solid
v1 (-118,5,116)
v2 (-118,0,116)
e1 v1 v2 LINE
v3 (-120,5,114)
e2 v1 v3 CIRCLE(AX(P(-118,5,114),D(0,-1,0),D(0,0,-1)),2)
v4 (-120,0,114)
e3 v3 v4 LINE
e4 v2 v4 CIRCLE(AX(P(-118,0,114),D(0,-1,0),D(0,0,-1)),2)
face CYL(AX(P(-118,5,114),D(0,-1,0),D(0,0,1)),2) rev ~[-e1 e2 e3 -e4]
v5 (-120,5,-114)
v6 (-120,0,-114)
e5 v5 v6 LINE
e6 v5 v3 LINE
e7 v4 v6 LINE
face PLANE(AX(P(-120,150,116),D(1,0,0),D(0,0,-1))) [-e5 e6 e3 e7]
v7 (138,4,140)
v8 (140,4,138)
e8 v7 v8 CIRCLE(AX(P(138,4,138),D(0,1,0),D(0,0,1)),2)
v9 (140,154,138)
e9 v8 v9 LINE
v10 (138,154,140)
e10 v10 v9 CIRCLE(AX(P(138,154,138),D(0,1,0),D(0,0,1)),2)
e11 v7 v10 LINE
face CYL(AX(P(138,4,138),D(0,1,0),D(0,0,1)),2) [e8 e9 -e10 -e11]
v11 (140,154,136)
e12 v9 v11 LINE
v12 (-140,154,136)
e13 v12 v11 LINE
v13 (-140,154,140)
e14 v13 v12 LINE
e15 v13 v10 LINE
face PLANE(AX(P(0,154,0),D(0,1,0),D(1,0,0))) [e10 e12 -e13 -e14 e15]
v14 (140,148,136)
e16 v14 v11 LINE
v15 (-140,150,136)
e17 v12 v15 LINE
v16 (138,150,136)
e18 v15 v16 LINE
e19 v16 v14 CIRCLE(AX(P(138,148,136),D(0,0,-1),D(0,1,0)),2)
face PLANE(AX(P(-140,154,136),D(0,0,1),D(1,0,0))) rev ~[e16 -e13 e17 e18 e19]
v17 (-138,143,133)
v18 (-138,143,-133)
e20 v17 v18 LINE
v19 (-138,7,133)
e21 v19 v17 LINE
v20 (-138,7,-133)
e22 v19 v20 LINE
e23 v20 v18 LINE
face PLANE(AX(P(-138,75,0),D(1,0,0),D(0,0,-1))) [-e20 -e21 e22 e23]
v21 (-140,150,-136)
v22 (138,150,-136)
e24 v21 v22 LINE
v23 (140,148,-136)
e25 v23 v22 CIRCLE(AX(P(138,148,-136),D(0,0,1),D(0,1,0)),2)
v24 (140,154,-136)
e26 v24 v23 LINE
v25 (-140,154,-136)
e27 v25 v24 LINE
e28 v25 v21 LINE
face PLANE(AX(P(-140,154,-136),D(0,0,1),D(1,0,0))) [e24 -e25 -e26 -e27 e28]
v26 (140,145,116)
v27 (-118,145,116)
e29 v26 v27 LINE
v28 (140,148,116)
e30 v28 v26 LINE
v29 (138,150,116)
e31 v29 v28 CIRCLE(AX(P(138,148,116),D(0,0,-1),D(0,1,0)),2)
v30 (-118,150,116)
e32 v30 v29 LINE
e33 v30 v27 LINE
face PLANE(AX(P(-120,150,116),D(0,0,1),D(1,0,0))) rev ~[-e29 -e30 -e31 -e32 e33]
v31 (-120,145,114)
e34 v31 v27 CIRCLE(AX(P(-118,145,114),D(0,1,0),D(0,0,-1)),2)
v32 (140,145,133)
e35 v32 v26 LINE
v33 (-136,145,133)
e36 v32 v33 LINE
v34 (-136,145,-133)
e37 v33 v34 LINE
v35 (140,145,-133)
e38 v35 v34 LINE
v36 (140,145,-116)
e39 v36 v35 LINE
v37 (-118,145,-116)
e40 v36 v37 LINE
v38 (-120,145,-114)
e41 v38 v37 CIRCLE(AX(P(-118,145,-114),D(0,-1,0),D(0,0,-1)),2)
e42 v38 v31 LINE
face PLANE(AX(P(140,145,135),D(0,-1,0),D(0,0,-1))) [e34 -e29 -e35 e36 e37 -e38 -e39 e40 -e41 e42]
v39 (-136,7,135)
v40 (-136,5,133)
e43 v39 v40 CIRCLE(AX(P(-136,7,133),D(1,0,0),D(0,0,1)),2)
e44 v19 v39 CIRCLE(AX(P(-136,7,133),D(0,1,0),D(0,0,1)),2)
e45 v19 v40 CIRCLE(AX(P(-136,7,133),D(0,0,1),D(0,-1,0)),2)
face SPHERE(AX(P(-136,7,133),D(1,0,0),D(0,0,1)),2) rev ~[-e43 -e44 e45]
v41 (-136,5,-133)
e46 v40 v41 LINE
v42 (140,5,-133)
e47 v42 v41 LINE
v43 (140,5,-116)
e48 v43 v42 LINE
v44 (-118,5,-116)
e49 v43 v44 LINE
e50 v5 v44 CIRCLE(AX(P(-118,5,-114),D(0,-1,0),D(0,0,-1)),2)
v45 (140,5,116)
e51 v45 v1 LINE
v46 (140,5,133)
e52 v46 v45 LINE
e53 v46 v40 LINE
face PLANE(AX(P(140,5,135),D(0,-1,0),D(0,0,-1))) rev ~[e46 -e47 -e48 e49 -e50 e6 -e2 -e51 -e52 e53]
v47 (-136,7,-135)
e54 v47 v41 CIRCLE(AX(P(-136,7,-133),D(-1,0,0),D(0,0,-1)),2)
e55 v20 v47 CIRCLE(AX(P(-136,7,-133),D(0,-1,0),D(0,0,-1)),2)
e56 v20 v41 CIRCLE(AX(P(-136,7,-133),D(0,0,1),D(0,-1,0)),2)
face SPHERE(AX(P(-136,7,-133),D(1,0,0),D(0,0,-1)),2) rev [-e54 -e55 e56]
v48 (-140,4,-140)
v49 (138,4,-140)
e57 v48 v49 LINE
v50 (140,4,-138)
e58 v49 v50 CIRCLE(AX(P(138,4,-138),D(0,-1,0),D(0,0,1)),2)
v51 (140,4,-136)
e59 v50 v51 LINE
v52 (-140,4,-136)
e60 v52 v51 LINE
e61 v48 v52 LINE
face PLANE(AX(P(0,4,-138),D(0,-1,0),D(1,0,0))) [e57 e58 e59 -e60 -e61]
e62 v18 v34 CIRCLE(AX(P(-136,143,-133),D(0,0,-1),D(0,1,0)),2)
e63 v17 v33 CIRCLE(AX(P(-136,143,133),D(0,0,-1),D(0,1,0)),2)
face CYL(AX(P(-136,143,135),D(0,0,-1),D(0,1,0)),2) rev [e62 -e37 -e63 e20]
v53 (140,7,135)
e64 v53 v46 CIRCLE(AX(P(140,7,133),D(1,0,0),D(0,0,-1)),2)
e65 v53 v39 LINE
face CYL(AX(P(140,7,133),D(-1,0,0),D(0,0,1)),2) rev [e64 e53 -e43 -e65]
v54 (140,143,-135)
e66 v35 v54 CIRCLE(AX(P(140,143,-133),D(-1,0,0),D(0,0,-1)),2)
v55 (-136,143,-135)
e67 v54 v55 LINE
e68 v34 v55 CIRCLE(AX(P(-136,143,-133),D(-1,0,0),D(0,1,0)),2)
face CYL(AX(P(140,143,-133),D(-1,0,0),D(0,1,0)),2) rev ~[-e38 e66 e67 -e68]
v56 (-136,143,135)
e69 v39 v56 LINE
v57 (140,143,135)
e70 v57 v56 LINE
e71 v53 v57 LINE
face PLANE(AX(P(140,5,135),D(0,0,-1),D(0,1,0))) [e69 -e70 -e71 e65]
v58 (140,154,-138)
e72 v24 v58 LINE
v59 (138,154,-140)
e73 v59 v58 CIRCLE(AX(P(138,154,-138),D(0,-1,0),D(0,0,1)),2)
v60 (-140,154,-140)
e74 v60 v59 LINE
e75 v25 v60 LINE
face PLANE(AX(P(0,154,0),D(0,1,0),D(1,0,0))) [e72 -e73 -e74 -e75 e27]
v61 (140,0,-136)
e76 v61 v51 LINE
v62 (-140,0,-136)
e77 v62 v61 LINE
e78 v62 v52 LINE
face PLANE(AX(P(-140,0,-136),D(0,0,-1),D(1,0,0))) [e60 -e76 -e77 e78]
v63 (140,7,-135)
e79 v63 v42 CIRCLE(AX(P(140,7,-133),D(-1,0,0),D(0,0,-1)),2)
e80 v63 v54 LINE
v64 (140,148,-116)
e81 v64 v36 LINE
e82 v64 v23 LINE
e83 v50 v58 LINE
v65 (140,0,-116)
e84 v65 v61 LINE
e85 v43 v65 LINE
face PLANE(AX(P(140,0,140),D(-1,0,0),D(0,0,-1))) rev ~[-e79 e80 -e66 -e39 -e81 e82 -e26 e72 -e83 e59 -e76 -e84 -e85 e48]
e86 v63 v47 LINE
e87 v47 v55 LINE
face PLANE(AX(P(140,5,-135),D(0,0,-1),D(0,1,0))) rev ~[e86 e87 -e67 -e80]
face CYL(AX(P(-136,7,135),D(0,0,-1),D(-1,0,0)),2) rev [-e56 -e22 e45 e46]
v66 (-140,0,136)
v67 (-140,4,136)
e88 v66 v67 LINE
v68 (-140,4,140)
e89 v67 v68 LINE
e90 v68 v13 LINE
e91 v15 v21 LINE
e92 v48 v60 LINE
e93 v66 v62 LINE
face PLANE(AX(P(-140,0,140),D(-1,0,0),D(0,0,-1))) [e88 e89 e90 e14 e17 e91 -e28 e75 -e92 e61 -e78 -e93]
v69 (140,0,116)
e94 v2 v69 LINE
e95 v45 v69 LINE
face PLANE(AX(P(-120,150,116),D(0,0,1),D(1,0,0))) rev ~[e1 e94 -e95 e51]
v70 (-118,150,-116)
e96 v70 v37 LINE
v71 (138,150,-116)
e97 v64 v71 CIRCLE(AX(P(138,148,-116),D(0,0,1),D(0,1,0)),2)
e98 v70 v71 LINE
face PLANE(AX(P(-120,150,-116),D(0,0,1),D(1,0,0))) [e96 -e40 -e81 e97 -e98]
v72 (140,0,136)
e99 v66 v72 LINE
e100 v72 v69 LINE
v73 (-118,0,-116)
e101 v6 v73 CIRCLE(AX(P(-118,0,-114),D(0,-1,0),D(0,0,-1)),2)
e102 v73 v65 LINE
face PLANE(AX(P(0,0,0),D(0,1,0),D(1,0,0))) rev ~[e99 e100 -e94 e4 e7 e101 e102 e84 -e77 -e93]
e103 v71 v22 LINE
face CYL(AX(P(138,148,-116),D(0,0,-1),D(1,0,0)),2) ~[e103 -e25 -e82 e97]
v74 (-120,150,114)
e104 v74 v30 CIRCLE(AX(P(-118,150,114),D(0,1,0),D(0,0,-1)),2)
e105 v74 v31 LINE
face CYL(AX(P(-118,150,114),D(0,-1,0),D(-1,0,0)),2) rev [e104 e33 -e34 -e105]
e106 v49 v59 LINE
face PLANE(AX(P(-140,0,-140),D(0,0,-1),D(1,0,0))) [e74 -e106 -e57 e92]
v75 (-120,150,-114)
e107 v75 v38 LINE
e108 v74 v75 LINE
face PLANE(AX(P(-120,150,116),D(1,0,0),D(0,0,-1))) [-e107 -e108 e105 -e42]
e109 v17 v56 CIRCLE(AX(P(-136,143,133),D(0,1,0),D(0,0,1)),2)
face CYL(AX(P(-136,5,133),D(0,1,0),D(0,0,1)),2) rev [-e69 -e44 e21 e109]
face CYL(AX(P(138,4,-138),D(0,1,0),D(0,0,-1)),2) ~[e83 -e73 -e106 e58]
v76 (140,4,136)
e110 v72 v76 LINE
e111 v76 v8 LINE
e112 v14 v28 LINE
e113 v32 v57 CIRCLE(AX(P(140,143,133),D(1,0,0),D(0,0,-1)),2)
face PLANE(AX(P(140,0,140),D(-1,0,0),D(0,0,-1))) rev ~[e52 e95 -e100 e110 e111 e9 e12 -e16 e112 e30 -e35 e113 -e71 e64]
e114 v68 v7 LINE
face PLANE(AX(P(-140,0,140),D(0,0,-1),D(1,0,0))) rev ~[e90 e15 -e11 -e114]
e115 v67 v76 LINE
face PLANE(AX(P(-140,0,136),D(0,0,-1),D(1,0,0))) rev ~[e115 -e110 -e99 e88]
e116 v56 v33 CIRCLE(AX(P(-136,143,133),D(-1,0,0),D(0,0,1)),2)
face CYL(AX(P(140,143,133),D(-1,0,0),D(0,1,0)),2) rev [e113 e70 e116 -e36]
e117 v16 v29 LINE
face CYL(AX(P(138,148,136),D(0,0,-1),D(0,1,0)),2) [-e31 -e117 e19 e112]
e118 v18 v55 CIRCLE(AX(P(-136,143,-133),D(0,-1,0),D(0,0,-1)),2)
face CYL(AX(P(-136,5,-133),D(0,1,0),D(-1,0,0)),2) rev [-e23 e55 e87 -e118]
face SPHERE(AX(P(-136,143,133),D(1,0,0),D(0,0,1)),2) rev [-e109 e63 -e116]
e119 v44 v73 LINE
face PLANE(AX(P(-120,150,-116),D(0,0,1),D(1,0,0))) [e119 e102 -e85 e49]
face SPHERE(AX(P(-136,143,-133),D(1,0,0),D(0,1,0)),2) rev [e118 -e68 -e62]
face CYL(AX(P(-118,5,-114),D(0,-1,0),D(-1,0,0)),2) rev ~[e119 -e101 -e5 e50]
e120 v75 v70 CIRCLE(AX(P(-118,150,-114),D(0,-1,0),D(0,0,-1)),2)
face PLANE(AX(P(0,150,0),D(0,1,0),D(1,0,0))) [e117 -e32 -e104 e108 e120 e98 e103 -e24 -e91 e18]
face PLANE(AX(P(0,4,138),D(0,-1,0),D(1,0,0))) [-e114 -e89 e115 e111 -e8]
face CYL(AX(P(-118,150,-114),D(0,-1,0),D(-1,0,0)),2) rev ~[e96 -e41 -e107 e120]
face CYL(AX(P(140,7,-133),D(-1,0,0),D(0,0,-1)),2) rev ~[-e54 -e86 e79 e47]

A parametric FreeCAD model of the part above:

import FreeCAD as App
import Part
import Sketcher


def edges_at(feature, points):
    """Names of the edges that pass closest to the given points."""
    edges = feature.Shape.Edges
    near = lambda p: min(range(len(edges)), key=lambda i: edges[i].distToShape(Part.Vertex(*p))[0])
    return sorted({f"Edge{near(p) + 1}" for p in points})

doc = App.newDocument("Part")
body = doc.addObject("PartDesign::Body", "Body")

# Sketch on XZ plane
sketch1 = body.newObject("Sketcher::SketchObject", "Sketch")
sketch1.AttachmentSupport = (doc.getObject("XZ_Plane"), [""])
sketch1.MapMode = "FlatFace"
sketch1.addGeometry([
    Part.LineSegment(App.Vector(-140, -140, 0), App.Vector(-140, 140, 0)),
    Part.LineSegment(App.Vector(-140, 140, 0), App.Vector(140, 140, 0)),
    Part.LineSegment(App.Vector(140, 140, 0), App.Vector(140, -140, 0)),
    Part.LineSegment(App.Vector(140, -140, 0), App.Vector(-140, -140, 0)),
], False)
sketch1.addConstraint([
    Sketcher.Constraint("Coincident", 0, 2, 1, 1),
    Sketcher.Constraint("Coincident", 1, 2, 2, 1),
    Sketcher.Constraint("Coincident", 2, 2, 3, 1),
    Sketcher.Constraint("Coincident", 3, 2, 0, 1),
    Sketcher.Constraint("Vertical", 0),
    Sketcher.Constraint("Horizontal", 1),
    Sketcher.Constraint("Vertical", 2),
    Sketcher.Constraint("Horizontal", 3),
    Sketcher.Constraint("Symmetric", 0, 2, 2, 2, -1, 1),
    Sketcher.Constraint("Equal", 3, 0),
    Sketcher.Constraint("DistanceX", 1, 1, 1, 2, 280.0),
])
pad1 = body.newObject("PartDesign::Pad", "Pad")
pad1.Profile = sketch1
pad1.Length = 154
pad1.Reversed = True

# Sketch on XZ plane
sketch2 = body.newObject("Sketcher::SketchObject", "Sketch001")
sketch2.AttachmentSupport = (doc.getObject("XZ_Plane"), [""])
sketch2.MapMode = "FlatFace"
sketch2.AttachmentOffset = App.Placement(App.Vector(0, 0, -154), App.Rotation())
sketch2.addGeometry([
    Part.LineSegment(App.Vector(-140, -136, 0), App.Vector(-140, 136, 0)),
    Part.LineSegment(App.Vector(-140, 136, 0), App.Vector(140, 136, 0)),
    Part.LineSegment(App.Vector(140, 136, 0), App.Vector(140, -136, 0)),
    Part.LineSegment(App.Vector(140, -136, 0), App.Vector(-140, -136, 0)),
], False)
sketch2.addConstraint([
    Sketcher.Constraint("Coincident", 0, 2, 1, 1),
    Sketcher.Constraint("Coincident", 1, 2, 2, 1),
    Sketcher.Constraint("Coincident", 2, 2, 3, 1),
    Sketcher.Constraint("Coincident", 3, 2, 0, 1),
    Sketcher.Constraint("Vertical", 0),
    Sketcher.Constraint("Horizontal", 1),
    Sketcher.Constraint("Vertical", 2),
    Sketcher.Constraint("Horizontal", 3),
    Sketcher.Constraint("Symmetric", 0, 2, 2, 2, -1, 1),
    Sketcher.Constraint("DistanceX", 1, 1, 1, 2, 280.0),
    Sketcher.Constraint("DistanceY", 0, 1, 0, 2, 272.0),
])
pocket1 = body.newObject("PartDesign::Pocket", "Pocket")
pocket1.Profile = sketch2
pocket1.Length = 4
pocket1.Reversed = True

# Sketch on XZ plane
sketch3 = body.newObject("Sketcher::SketchObject", "Sketch002")
sketch3.AttachmentSupport = (doc.getObject("XZ_Plane"), [""])
sketch3.MapMode = "FlatFace"
sketch3.addGeometry([
    Part.LineSegment(App.Vector(-140, 140, 0), App.Vector(-140, 136, 0)),  # 0
    Part.LineSegment(App.Vector(-140, 136, 0), App.Vector(140, 136, 0)),  # 1
    Part.LineSegment(App.Vector(140, 136, 0), App.Vector(140, 140, 0)),  # 2
    Part.LineSegment(App.Vector(140, 140, 0), App.Vector(-140, 140, 0)),  # 3
    Part.LineSegment(App.Vector(-140, -136, 0), App.Vector(-140, -140, 0)),  # 4
    Part.LineSegment(App.Vector(-140, -140, 0), App.Vector(140, -140, 0)),  # 5
    Part.LineSegment(App.Vector(140, -140, 0), App.Vector(140, -136, 0)),  # 6
    Part.LineSegment(App.Vector(140, -136, 0), App.Vector(-140, -136, 0)),  # 7
], False)
sketch3.addConstraint([
    Sketcher.Constraint("Coincident", 0, 2, 1, 1),
    Sketcher.Constraint("Coincident", 1, 2, 2, 1),
    Sketcher.Constraint("Coincident", 2, 2, 3, 1),
    Sketcher.Constraint("Coincident", 3, 2, 0, 1),
    Sketcher.Constraint("Coincident", 4, 2, 5, 1),
    Sketcher.Constraint("Coincident", 5, 2, 6, 1),
    Sketcher.Constraint("Coincident", 6, 2, 7, 1),
    Sketcher.Constraint("Coincident", 7, 2, 4, 1),
    Sketcher.Constraint("Vertical", 0),
    Sketcher.Constraint("Horizontal", 1),
    Sketcher.Constraint("Vertical", 2),
    Sketcher.Constraint("Horizontal", 3),
    Sketcher.Constraint("Vertical", 4),
    Sketcher.Constraint("Horizontal", 5),
    Sketcher.Constraint("Vertical", 6),
    Sketcher.Constraint("Horizontal", 7),
    Sketcher.Constraint("Symmetric", 2, 2, 4, 2, -1, 1),
    Sketcher.Constraint("Symmetric", 0, 2, 6, 2, -1, 1),
    Sketcher.Constraint("Vertical", 3, 2, 4, 2),
    Sketcher.Constraint("DistanceX", 1, 1, 1, 2, 280.0),
    Sketcher.Constraint("DistanceY", 0, 2, 0, 1, 4.0),
    Sketcher.Constraint("DistanceY", -1, 1, 0, 2, 136.0),
])
pocket2 = body.newObject("PartDesign::Pocket", "Pocket001")
pocket2.Profile = sketch3
pocket2.Length = 4

# Sketch on YZ plane
sketch4 = body.newObject("Sketcher::SketchObject", "Sketch003")
sketch4.AttachmentSupport = (doc.getObject("YZ_Plane"), [""])
sketch4.MapMode = "FlatFace"
sketch4.AttachmentOffset = App.Placement(App.Vector(0, 0, 140), App.Rotation())
sketch4.addGeometry([
    Part.LineSegment(App.Vector(145, 135, 0), App.Vector(5, 135, 0)),
    Part.LineSegment(App.Vector(5, 135, 0), App.Vector(5, -135, 0)),
    Part.LineSegment(App.Vector(5, -135, 0), App.Vector(145, -135, 0)),
    Part.LineSegment(App.Vector(145, -135, 0), App.Vector(145, 135, 0)),
], False)
sketch4.addConstraint([
    Sketcher.Constraint("Coincident", 0, 2, 1, 1),
    Sketcher.Constraint("Coincident", 1, 2, 2, 1),
    Sketcher.Constraint("Coincident", 2, 2, 3, 1),
    Sketcher.Constraint("Coincident", 3, 2, 0, 1),
    Sketcher.Constraint("Horizontal", 0),
    Sketcher.Constraint("Vertical", 1),
    Sketcher.Constraint("Horizontal", 2),
    Sketcher.Constraint("Vertical", 3),
    Sketcher.Constraint("DistanceX", 0, 2, 0, 1, 140.0),
    Sketcher.Constraint("DistanceY", 1, 2, 1, 1, 270.0),
    Sketcher.Constraint("DistanceX", -1, 1, 0, 2, 5.0),
    Sketcher.Constraint("DistanceY", -1, 1, 0, 2, 135.0),
])
pocket3 = body.newObject("PartDesign::Pocket", "Pocket002")
pocket3.Profile = sketch4
pocket3.Length = 278

# Sketch on XZ plane
sketch5 = body.newObject("Sketcher::SketchObject", "Sketch004")
sketch5.AttachmentSupport = (doc.getObject("XZ_Plane"), [""])
sketch5.MapMode = "FlatFace"
sketch5.AttachmentOffset = App.Placement(App.Vector(0, 0, -150), App.Rotation())
sketch5.addGeometry([
    Part.LineSegment(App.Vector(-120, -116, 0), App.Vector(-120, 116, 0)),
    Part.LineSegment(App.Vector(-120, 116, 0), App.Vector(140, 116, 0)),
    Part.LineSegment(App.Vector(140, 116, 0), App.Vector(140, -116, 0)),
    Part.LineSegment(App.Vector(140, -116, 0), App.Vector(-120, -116, 0)),
], False)
sketch5.addConstraint([
    Sketcher.Constraint("Coincident", 0, 2, 1, 1),
    Sketcher.Constraint("Coincident", 1, 2, 2, 1),
    Sketcher.Constraint("Coincident", 2, 2, 3, 1),
    Sketcher.Constraint("Coincident", 3, 2, 0, 1),
    Sketcher.Constraint("Vertical", 0),
    Sketcher.Constraint("Horizontal", 1),
    Sketcher.Constraint("Vertical", 2),
    Sketcher.Constraint("Horizontal", 3),
    Sketcher.Constraint("DistanceX", 1, 1, 1, 2, 260.0),
    Sketcher.Constraint("DistanceY", 0, 1, 0, 2, 232.0),
    Sketcher.Constraint("DistanceX", 0, 2, -1, 1, 120.0),
    Sketcher.Constraint("DistanceY", -1, 1, 0, 2, 116.0),
])
pocket4 = body.newObject("PartDesign::Pocket", "Pocket003")
pocket4.Profile = sketch5
pocket4.Type = "ThroughAll"
pocket4.Reversed = True
doc.recompute()

fillet = body.newObject("PartDesign::Fillet", "Fillet")
fillet.Base = (pocket4, edges_at(pocket4, [(140, 79, -140), (140, 79, 140)]))
fillet.Radius = 2
doc.recompute()

fillet2 = body.newObject("PartDesign::Fillet", "Fillet001")
fillet2.Base = (fillet, edges_at(fillet, [(140, 150, 126), (140, 150, -126)]))
fillet2.Radius = 2
doc.recompute()

fillet3 = body.newObject("PartDesign::Fillet", "Fillet002")
fillet3.Base = (fillet2, edges_at(fillet2, [
    (-120, 147.5, 116),
    (-120, 2.5, 116),
    (-120, 147.5, -116),
    (-120, 2.5, -116),
]))
fillet3.Radius = 2
doc.recompute()

fillet4 = body.newObject("PartDesign::Fillet", "Fillet003")
fillet4.Base = (fillet3, edges_at(fillet3, [
    (1, 5, 135),
    (1, 145, 135),
    (1, 145, -135),
    (1, 5, -135),
    (-138, 75, 135),
    (-138, 145, 0),
    (-138, 75, -135),
    (-138, 5, 0),
]))
fillet4.Radius = 2

doc.recompute()
